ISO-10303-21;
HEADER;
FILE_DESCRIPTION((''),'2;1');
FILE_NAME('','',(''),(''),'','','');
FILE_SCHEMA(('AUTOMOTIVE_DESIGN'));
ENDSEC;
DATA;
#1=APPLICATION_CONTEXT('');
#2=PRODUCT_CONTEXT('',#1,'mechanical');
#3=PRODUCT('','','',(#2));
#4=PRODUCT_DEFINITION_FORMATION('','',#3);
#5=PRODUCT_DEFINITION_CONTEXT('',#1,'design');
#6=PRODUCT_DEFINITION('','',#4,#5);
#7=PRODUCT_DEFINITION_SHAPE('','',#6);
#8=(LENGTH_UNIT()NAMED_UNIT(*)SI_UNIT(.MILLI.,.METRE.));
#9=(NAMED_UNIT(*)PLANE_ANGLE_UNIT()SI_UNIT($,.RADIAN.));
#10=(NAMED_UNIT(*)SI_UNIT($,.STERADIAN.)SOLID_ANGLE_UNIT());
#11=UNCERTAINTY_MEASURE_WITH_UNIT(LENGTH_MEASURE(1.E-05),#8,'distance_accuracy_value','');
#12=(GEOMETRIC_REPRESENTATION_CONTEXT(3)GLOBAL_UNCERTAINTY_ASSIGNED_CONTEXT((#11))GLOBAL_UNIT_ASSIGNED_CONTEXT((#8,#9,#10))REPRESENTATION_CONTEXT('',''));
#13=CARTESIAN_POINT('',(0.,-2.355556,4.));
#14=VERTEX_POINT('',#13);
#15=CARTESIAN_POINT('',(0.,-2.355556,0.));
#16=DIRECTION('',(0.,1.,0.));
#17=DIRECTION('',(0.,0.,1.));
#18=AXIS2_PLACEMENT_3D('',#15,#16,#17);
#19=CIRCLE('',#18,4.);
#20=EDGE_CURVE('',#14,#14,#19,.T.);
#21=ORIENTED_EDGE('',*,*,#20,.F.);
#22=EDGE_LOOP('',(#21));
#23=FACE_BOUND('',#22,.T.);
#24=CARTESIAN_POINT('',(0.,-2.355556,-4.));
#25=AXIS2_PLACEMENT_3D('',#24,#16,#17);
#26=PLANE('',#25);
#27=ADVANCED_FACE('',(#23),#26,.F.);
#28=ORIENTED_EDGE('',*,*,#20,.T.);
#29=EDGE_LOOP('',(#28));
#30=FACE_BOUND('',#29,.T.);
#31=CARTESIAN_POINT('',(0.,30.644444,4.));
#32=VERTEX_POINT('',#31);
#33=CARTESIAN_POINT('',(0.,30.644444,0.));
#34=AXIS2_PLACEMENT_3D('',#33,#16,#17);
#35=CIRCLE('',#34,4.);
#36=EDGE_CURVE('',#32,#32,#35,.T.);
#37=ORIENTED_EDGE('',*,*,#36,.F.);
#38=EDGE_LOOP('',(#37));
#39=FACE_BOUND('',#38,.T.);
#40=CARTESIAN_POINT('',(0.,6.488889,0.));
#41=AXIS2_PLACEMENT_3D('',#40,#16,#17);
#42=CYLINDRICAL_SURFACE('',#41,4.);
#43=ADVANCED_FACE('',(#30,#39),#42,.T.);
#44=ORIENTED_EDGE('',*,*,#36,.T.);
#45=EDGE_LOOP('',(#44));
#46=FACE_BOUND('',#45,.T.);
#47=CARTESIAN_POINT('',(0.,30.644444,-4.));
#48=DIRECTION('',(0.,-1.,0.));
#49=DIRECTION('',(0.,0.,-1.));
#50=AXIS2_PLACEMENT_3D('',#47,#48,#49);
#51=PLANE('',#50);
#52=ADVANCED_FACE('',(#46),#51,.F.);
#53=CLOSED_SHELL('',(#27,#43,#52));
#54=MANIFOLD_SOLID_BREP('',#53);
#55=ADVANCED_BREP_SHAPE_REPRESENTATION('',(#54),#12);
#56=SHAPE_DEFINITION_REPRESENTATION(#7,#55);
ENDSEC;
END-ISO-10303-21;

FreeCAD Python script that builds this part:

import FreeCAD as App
import Part
import Sketcher
from FreeCAD import Vector


def add_polygon(sketch, points):
    """Adds a closed chain of lines whose ends are joined by coincident constraints."""
    first, n = sketch.GeometryCount, len(points)
    for a, b in zip(points, points[1:] + points[:1]):
        sketch.addGeometry(Part.LineSegment(App.Vector(*a, 0), App.Vector(*b, 0)), False)
    for i in range(n):
        sketch.addConstraint(Sketcher.Constraint("Coincident", first + i, 2, first + (i + 1) % n, 1))

doc = App.newDocument("Part")
body = doc.addObject("PartDesign::Body", "Body")

sketch1 = body.newObject("Sketcher::SketchObject", "Sketch")
sketch1.AttachmentSupport = (doc.getObject("YZ_Plane"), [""])
sketch1.MapMode = "FlatFace"
add_polygon(sketch1, [(30.644444, 0), (-2.355556, 0), (-2.355556, -4), (30.644444, -4)])
sketch1.addConstraint(Sketcher.Constraint("Horizontal", 0))
sketch1.addConstraint(Sketcher.Constraint("Vertical", 1))
sketch1.addConstraint(Sketcher.Constraint("Horizontal", 2))
sketch1.addConstraint(Sketcher.Constraint("Vertical", 3))
sketch1.addConstraint(Sketcher.Constraint("PointOnObject", 0, 2, -1))
sketch1.addConstraint(Sketcher.Constraint("DistanceX", 0, 2, 0, 1, 33.0))
sketch1.addConstraint(Sketcher.Constraint("DistanceY", 1, 2, 1, 1, 4.0))
sketch1.addConstraint(Sketcher.Constraint("DistanceX", 0, 2, -1, 1, 2.355556))
revolution = body.newObject("PartDesign::Revolution", "Revolution")
revolution.Profile = sketch1
revolution.ReferenceAxis = (sketch1, ["H_Axis"])
revolution.Angle = 360

doc.recompute()
